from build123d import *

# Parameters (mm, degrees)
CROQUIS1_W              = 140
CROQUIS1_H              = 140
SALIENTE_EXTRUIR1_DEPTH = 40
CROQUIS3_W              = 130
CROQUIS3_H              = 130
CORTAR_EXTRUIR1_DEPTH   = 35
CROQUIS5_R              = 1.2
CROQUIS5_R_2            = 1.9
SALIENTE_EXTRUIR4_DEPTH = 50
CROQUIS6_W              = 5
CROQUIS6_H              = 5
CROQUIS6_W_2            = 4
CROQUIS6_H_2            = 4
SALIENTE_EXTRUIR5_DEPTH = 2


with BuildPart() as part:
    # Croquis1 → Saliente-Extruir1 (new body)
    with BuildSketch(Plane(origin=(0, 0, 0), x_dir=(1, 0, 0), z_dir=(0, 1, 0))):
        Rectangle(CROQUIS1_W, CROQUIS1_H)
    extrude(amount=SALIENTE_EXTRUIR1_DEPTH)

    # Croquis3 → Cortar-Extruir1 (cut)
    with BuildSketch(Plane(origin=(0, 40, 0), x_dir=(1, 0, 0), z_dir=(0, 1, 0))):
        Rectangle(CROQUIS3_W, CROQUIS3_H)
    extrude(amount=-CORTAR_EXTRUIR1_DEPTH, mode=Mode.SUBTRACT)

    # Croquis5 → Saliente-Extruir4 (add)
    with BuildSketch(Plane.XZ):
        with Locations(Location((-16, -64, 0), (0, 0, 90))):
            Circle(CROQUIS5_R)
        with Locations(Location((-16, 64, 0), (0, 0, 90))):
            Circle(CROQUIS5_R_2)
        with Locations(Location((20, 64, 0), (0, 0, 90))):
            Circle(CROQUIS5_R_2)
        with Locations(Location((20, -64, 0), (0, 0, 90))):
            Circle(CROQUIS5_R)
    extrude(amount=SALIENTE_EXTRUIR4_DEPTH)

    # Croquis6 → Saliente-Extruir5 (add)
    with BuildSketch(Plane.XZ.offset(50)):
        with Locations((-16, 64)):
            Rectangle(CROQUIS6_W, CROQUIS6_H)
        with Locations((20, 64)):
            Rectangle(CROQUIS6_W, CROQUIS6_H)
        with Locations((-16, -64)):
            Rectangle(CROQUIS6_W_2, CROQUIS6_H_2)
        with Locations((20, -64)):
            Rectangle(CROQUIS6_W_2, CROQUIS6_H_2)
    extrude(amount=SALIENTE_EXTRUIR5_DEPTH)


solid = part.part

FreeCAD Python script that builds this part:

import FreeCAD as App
import Part
import Sketcher
Q = App.Units.Quantity

doc = App.newDocument("Part")
body = doc.addObject("PartDesign::Body", "Body")

sketch1 = body.newObject("Sketcher::SketchObject", "Sketch")
sketch1.AttachmentSupport = (doc.getObject("XZ_Plane"), [""])
sketch1.MapMode = "FlatFace"
sketch1.addGeometry([
    Part.LineSegment(App.Vector(-70, -70, 0), App.Vector(-70, 70, 0)),
    Part.LineSegment(App.Vector(-70, 70, 0), App.Vector(70, 70, 0)),
    Part.LineSegment(App.Vector(70, 70, 0), App.Vector(70, -70, 0)),
    Part.LineSegment(App.Vector(70, -70, 0), App.Vector(-70, -70, 0)),
], False)
sketch1.addConstraint([
    Sketcher.Constraint("Coincident", 0, 2, 1, 1),
    Sketcher.Constraint("Coincident", 1, 2, 2, 1),
    Sketcher.Constraint("Coincident", 2, 2, 3, 1),
    Sketcher.Constraint("Coincident", 3, 2, 0, 1),
    Sketcher.Constraint("Vertical", 0),
    Sketcher.Constraint("Horizontal", 1),
    Sketcher.Constraint("Vertical", 2),
    Sketcher.Constraint("Horizontal", 3),
    Sketcher.Constraint("Symmetric", 0, 2, 2, 2, -1, 1),
    Sketcher.Constraint("Equal", 3, 0),
    Sketcher.Constraint("DistanceX", 1, 1, 1, 2, Q("140 mm")),
])
pad1 = body.newObject("PartDesign::Pad", "Pad")
pad1.Profile = sketch1
pad1.Length = 40
pad1.Reversed = True

sketch2 = body.newObject("Sketcher::SketchObject", "Sketch001")
sketch2.AttachmentSupport = (doc.getObject("XZ_Plane"), [""])
sketch2.MapMode = "FlatFace"
sketch2.AttachmentOffset = App.Placement(App.Vector(0, 0, -40), App.Rotation())
sketch2.addGeometry([
    Part.LineSegment(App.Vector(-65, -65, 0), App.Vector(-65, 65, 0)),
    Part.LineSegment(App.Vector(-65, 65, 0), App.Vector(65, 65, 0)),
    Part.LineSegment(App.Vector(65, 65, 0), App.Vector(65, -65, 0)),
    Part.LineSegment(App.Vector(65, -65, 0), App.Vector(-65, -65, 0)),
], False)
sketch2.addConstraint([
    Sketcher.Constraint("Coincident", 0, 2, 1, 1),
    Sketcher.Constraint("Coincident", 1, 2, 2, 1),
    Sketcher.Constraint("Coincident", 2, 2, 3, 1),
    Sketcher.Constraint("Coincident", 3, 2, 0, 1),
    Sketcher.Constraint("Vertical", 0),
    Sketcher.Constraint("Horizontal", 1),
    Sketcher.Constraint("Vertical", 2),
    Sketcher.Constraint("Horizontal", 3),
    Sketcher.Constraint("Symmetric", 0, 2, 2, 2, -1, 1),
    Sketcher.Constraint("Equal", 3, 0),
    Sketcher.Constraint("DistanceX", 1, 1, 1, 2, Q("130 mm")),
])
pocket1 = body.newObject("PartDesign::Pocket", "Pocket")
pocket1.Profile = sketch2
pocket1.Length = 35
pocket1.Reversed = True

sketch3 = body.newObject("Sketcher::SketchObject", "Sketch002")
sketch3.AttachmentSupport = (doc.getObject("XZ_Plane"), [""])
sketch3.MapMode = "FlatFace"
sketch3.addGeometry([
    Part.Circle(App.Vector(-16, -64, 0), App.Vector(0, 0, 1), 1.2),
    Part.Circle(App.Vector(-16, 64, 0), App.Vector(0, 0, 1), 1.9),
    Part.Circle(App.Vector(20, 64, 0), App.Vector(0, 0, 1), 1.9),
    Part.Circle(App.Vector(20, -64, 0), App.Vector(0, 0, 1), 1.2),
], False)
sketch3.addConstraint([
    Sketcher.Constraint("Equal", 1, 2),
    Sketcher.Constraint("Equal", 0, 3),
    Sketcher.Constraint("Symmetric", 0, 3, 1, 3, -1),
    Sketcher.Constraint("Symmetric", 2, 3, 3, 3, -1),
    Sketcher.Constraint("Horizontal", 1, 3, 2, 3),
    Sketcher.Constraint("Diameter", 0, Q("2.4 mm")),
    Sketcher.Constraint("Diameter", 1, Q("3.8 mm")),
    Sketcher.Constraint("DistanceX", 0, 3, -1, 1, Q("16 mm")),
    Sketcher.Constraint("DistanceY", 0, 3, -1, 1, Q("64 mm")),
    Sketcher.Constraint("DistanceX", -1, 1, 2, 3, Q("20 mm")),
])
pad2 = body.newObject("PartDesign::Pad", "Pad001")
pad2.Profile = sketch3
pad2.Length = 50

sketch4 = body.newObject("Sketcher::SketchObject", "Sketch003")
sketch4.AttachmentSupport = (doc.getObject("XZ_Plane"), [""])
sketch4.MapMode = "FlatFace"
sketch4.AttachmentOffset = App.Placement(App.Vector(0, 0, 50), App.Rotation())
sketch4.addGeometry([
    Part.LineSegment(App.Vector(-18.5, 66.5, 0), App.Vector(-18.5, 61.5, 0)),
    Part.LineSegment(App.Vector(-18.5, 61.5, 0), App.Vector(-13.5, 61.5, 0)),
    Part.LineSegment(App.Vector(-13.5, 61.5, 0), App.Vector(-13.5, 66.5, 0)),
    Part.LineSegment(App.Vector(-13.5, 66.5, 0), App.Vector(-18.5, 66.5, 0)),
    Part.LineSegment(App.Vector(17.5, 66.5, 0), App.Vector(17.5, 61.5, 0)),
    Part.LineSegment(App.Vector(17.5, 61.5, 0), App.Vector(22.5, 61.5, 0)),
    Part.LineSegment(App.Vector(22.5, 61.5, 0), App.Vector(22.5, 66.5, 0)),
    Part.LineSegment(App.Vector(22.5, 66.5, 0), App.Vector(17.5, 66.5, 0)),
    Part.LineSegment(App.Vector(-18, -62, 0), App.Vector(-18, -66, 0)),
    Part.LineSegment(App.Vector(-18, -66, 0), App.Vector(-14, -66, 0)),
    Part.LineSegment(App.Vector(-14, -66, 0), App.Vector(-14, -62, 0)),
    Part.LineSegment(App.Vector(-14, -62, 0), App.Vector(-18, -62, 0)),
    Part.LineSegment(App.Vector(18, -62, 0), App.Vector(18, -66, 0)),
    Part.LineSegment(App.Vector(18, -66, 0), App.Vector(22, -66, 0)),
    Part.LineSegment(App.Vector(22, -66, 0), App.Vector(22, -62, 0)),
    Part.LineSegment(App.Vector(22, -62, 0), App.Vector(18, -62, 0)),
], False)
sketch4.addConstraint([
    Sketcher.Constraint("Coincident", 0, 2, 1, 1),
    Sketcher.Constraint("Coincident", 1, 2, 2, 1),
    Sketcher.Constraint("Coincident", 2, 2, 3, 1),
    Sketcher.Constraint("Coincident", 3, 2, 0, 1),
    Sketcher.Constraint("Coincident", 4, 2, 5, 1),
    Sketcher.Constraint("Coincident", 5, 2, 6, 1),
    Sketcher.Constraint("Coincident", 6, 2, 7, 1),
    Sketcher.Constraint("Coincident", 7, 2, 4, 1),
    Sketcher.Constraint("Coincident", 8, 2, 9, 1),
    Sketcher.Constraint("Coincident", 9, 2, 10, 1),
    Sketcher.Constraint("Coincident", 10, 2, 11, 1),
    Sketcher.Constraint("Coincident", 11, 2, 8, 1),
    Sketcher.Constraint("Coincident", 12, 2, 13, 1),
    Sketcher.Constraint("Coincident", 13, 2, 14, 1),
    Sketcher.Constraint("Coincident", 14, 2, 15, 1),
    Sketcher.Constraint("Coincident", 15, 2, 12, 1),
    Sketcher.Constraint("Vertical", 0),
    Sketcher.Constraint("Horizontal", 1),
    Sketcher.Constraint("Vertical", 2),
    Sketcher.Constraint("Horizontal", 3),
    Sketcher.Constraint("Vertical", 4),
    Sketcher.Constraint("Horizontal", 5),
    Sketcher.Constraint("Vertical", 6),
    Sketcher.Constraint("Horizontal", 7),
    Sketcher.Constraint("Vertical", 8),
    Sketcher.Constraint("Horizontal", 9),
    Sketcher.Constraint("Vertical", 10),
    Sketcher.Constraint("Horizontal", 11),
    Sketcher.Constraint("Vertical", 12),
    Sketcher.Constraint("Horizontal", 13),
    Sketcher.Constraint("Vertical", 14),
    Sketcher.Constraint("Horizontal", 15),
    Sketcher.Constraint("Symmetric", 8, 2, 12, 2, -2),
    Sketcher.Constraint("Horizontal", 1, 2, 4, 2),
    Sketcher.Constraint("Horizontal", 3, 2, 6, 2),
    Sketcher.Constraint("Horizontal", 11, 2, 14, 2),
    Sketcher.Constraint("Equal", 3, 5),
    Sketcher.Constraint("Equal", 11, 13),
    Sketcher.Constraint("Equal", 7, 0),
    Sketcher.Constraint("Equal", 15, 8),
    Sketcher.Constraint("DistanceX", 1, 1, 1, 2, Q("5 mm")),
    Sketcher.Constraint("DistanceX", 9, 1, 9, 2, Q("4 mm")),
    Sketcher.Constraint("DistanceX", 8, 2, -1, 1, Q("18 mm")),
    Sketcher.Constraint("DistanceY", 8, 2, -1, 1, Q("66 mm")),
    Sketcher.Constraint("DistanceX", 1, 2, 4, 2, Q("31 mm")),
    Sketcher.Constraint("DistanceX", 0, 2, -1, 1, Q("18.5 mm")),
    Sketcher.Constraint("DistanceY", -1, 1, 0, 2, Q("61.5 mm")),
])
pad3 = body.newObject("PartDesign::Pad", "Pad002")
pad3.Profile = sketch4
pad3.Length = 2

doc.recompute()
